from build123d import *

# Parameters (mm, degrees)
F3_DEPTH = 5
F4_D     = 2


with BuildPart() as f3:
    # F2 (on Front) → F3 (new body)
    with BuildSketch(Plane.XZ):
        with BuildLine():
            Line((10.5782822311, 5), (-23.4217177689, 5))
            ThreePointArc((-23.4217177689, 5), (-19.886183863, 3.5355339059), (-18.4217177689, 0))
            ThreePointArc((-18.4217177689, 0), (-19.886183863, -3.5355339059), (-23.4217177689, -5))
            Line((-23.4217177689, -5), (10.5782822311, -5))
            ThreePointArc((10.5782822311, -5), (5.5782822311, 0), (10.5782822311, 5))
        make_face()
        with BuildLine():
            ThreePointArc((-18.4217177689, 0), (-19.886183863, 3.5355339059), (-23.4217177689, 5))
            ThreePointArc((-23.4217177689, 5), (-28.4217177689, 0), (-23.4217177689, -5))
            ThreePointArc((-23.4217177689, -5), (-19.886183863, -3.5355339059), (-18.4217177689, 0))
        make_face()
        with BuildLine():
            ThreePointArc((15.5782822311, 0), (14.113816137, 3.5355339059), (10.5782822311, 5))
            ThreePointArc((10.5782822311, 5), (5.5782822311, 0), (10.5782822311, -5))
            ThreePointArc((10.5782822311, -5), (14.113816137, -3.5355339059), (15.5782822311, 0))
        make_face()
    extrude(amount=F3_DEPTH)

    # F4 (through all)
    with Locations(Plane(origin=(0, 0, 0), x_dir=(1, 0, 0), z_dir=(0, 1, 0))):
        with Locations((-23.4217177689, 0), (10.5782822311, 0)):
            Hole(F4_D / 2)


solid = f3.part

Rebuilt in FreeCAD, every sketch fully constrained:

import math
import FreeCAD as App
import Part
import Sketcher
from FreeCAD import Vector
Q = App.Units.Quantity

doc = App.newDocument("Part")
body = doc.addObject("PartDesign::Body", "Body")

# Sketch on XZ plane
sketch1 = doc.addObject("Sketcher::SketchObject", "Sketch")
body.addObject(sketch1)
sketch1.AttachmentSupport = (doc.XZ_Plane, [""])
sketch1.MapMode = "FlatFace"
sketch1.addGeometry([
    Part.LineSegment(Vector(11, 5, 0), Vector(-23, 5, 0)),  # 0
    Part.ArcOfCircle(Part.Circle(Vector(-23, 0, 0), Vector(0, 0, 1), 5), math.radians(90), math.radians(270)),  # 1
    Part.LineSegment(Vector(-23, -5, 0), Vector(11, -5, 0)),  # 2
    Part.ArcOfCircle(Part.Circle(Vector(11, 0, 0), Vector(0, 0, 1), 5), math.radians(-90), math.radians(0)),  # 3
    Part.ArcOfCircle(Part.Circle(Vector(11, 0, 0), Vector(0, 0, 1), 5), math.radians(0), math.radians(90)),  # 4
], False)
sketch1.addConstraint([
    Sketcher.Constraint("Tangent", 0, 2, 1, 1),
    Sketcher.Constraint("Tangent", 1, 2, 2, 1),
    Sketcher.Constraint("Tangent", 2, 2, 3, 1),
    Sketcher.Constraint("Tangent", 3, 2, 4, 1),
    Sketcher.Constraint("Tangent", 4, 2, 0, 1),
    Sketcher.Constraint("Horizontal", 0),
    Sketcher.Constraint("Horizontal", 2),
    Sketcher.Constraint("Equal", 1, 3),
    Sketcher.Constraint("PointOnObject", 1, 3, -1),
    Sketcher.Constraint("PointOnObject", 3, 2, -1),
    Sketcher.Constraint("Radius", 1, Q("5 mm")),
    Sketcher.Constraint("DistanceX", 0, 2, 0, 1, Q("34 mm")),
    Sketcher.Constraint("DistanceX", 1, 3, -1, 1, Q("23.421718 mm")),
])
pad1 = doc.addObject("PartDesign::Pad", "Pad")
body.addObject(pad1)
pad1.Profile = sketch1
pad1.Length = 5

# Sketch on XZ plane
sketch2 = doc.addObject("Sketcher::SketchObject", "Sketch001")
body.addObject(sketch2)
sketch2.AttachmentSupport = (doc.XZ_Plane, [""])
sketch2.MapMode = "FlatFace"
sketch2.addGeometry([
    Part.Circle(Vector(-23.4, 0, 0), Vector(0, 0, 1), 1),
    Part.Circle(Vector(10.6, 0, 0), Vector(0, 0, 1), 1),
], False)
sketch2.addConstraint([
    Sketcher.Constraint("Equal", 0, 1),
    Sketcher.Constraint("PointOnObject", 0, 3, -1),
    Sketcher.Constraint("PointOnObject", 1, 3, -1),
    Sketcher.Constraint("Diameter", 0, Q("2 mm")),
    Sketcher.Constraint("DistanceX", 0, 3, 1, 3, Q("34 mm")),
    Sketcher.Constraint("DistanceX", 0, 3, -1, 1, Q("23.421718 mm")),
])
doc.recompute()
hole = doc.addObject("PartDesign::Hole", "Hole")
body.addObject(hole)
hole.Profile = sketch2
hole.ThreadType = "None"
hole.Diameter = 2
hole.DepthType = "ThroughAll"
hole.Reversed = True

doc.recompute()
